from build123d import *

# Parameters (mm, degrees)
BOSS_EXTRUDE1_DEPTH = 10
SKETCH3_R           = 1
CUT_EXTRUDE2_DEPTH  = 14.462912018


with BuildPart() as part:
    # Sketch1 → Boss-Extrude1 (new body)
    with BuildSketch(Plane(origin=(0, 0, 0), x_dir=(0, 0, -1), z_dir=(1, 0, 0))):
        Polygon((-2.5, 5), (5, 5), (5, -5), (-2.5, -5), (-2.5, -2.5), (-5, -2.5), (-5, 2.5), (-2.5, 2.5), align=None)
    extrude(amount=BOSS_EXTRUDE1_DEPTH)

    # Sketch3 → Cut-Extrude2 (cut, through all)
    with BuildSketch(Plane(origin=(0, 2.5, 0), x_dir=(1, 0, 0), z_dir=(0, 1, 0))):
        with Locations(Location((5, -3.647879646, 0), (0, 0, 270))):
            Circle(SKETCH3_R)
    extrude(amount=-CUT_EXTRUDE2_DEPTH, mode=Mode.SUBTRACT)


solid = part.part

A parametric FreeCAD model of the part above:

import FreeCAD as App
import Part
import Sketcher
Q = App.Units.Quantity


def add_polygon(sketch, points):
    """Adds a closed chain of lines whose ends are joined by coincident constraints."""
    first, n = sketch.GeometryCount, len(points)
    for a, b in zip(points, points[1:] + points[:1]):
        sketch.addGeometry(Part.LineSegment(App.Vector(*a, 0), App.Vector(*b, 0)), False)
    for i in range(n):
        sketch.addConstraint(Sketcher.Constraint("Coincident", first + i, 2, first + (i + 1) % n, 1))

doc = App.newDocument("Part")
body = doc.addObject("PartDesign::Body", "Body")

sketch1 = doc.addObject("Sketcher::SketchObject", "Sketch")
body.addObject(sketch1)
sketch1.AttachmentSupport = (doc.YZ_Plane, [""])
sketch1.MapMode = "FlatFace"
add_polygon(sketch1, [(5, -5), (5, 2.5), (2.5, 2.5), (2.5, 5), (-2.5, 5), (-2.5, 2.5), (-5, 2.5), (-5, -5)])
sketch1.addConstraint(Sketcher.Constraint("Vertical", 0))
sketch1.addConstraint(Sketcher.Constraint("Horizontal", 1))
sketch1.addConstraint(Sketcher.Constraint("Vertical", 2))
sketch1.addConstraint(Sketcher.Constraint("Horizontal", 3))
sketch1.addConstraint(Sketcher.Constraint("Vertical", 4))
sketch1.addConstraint(Sketcher.Constraint("Horizontal", 5))
sketch1.addConstraint(Sketcher.Constraint("Vertical", 6))
sketch1.addConstraint(Sketcher.Constraint("Horizontal", 7))
sketch1.addConstraint(Sketcher.Constraint("Symmetric", 1, 2, 4, 2, -2))
sketch1.addConstraint(Sketcher.Constraint("Equal", 1, 5))
sketch1.addConstraint(Sketcher.Constraint("Equal", 5, 2))
sketch1.addConstraint(Sketcher.Constraint("DistanceX", 3, 2, 3, 1, Q("5 mm")))
sketch1.addConstraint(Sketcher.Constraint("DistanceX", 7, 1, 7, 2, Q("10 mm")))
sketch1.addConstraint(Sketcher.Constraint("DistanceY", 0, 1, 0, 2, Q("7.5 mm")))
sketch1.addConstraint(Sketcher.Constraint("DistanceY", -1, 1, 2, 2, Q("5 mm")))
pad1 = doc.addObject("PartDesign::Pad", "Pad")
body.addObject(pad1)
pad1.Profile = sketch1
pad1.Length = 10

sketch2 = doc.addObject("Sketcher::SketchObject", "Sketch001")
body.addObject(sketch2)
sketch2.AttachmentSupport = (doc.XZ_Plane, [""])
sketch2.MapMode = "FlatFace"
sketch2.AttachmentOffset = App.Placement(App.Vector(0, 0, -2.5), App.Rotation())
sketch2.addGeometry(Part.Circle(App.Vector(5, 3.6, 0), App.Vector(0, 0, 1), 1), False)
sketch2.addConstraint(Sketcher.Constraint("Diameter", 0, Q("2 mm")))
sketch2.addConstraint(Sketcher.Constraint("DistanceX", -1, 1, 0, 3, Q("5 mm")))
sketch2.addConstraint(Sketcher.Constraint("DistanceY", -1, 1, 0, 3, Q("3.64788 mm")))
pocket1 = doc.addObject("PartDesign::Pocket", "Pocket")
body.addObject(pocket1)
pocket1.Profile = sketch2
pocket1.Type = "ThroughAll"
pocket1.Reversed = True

doc.recompute()
